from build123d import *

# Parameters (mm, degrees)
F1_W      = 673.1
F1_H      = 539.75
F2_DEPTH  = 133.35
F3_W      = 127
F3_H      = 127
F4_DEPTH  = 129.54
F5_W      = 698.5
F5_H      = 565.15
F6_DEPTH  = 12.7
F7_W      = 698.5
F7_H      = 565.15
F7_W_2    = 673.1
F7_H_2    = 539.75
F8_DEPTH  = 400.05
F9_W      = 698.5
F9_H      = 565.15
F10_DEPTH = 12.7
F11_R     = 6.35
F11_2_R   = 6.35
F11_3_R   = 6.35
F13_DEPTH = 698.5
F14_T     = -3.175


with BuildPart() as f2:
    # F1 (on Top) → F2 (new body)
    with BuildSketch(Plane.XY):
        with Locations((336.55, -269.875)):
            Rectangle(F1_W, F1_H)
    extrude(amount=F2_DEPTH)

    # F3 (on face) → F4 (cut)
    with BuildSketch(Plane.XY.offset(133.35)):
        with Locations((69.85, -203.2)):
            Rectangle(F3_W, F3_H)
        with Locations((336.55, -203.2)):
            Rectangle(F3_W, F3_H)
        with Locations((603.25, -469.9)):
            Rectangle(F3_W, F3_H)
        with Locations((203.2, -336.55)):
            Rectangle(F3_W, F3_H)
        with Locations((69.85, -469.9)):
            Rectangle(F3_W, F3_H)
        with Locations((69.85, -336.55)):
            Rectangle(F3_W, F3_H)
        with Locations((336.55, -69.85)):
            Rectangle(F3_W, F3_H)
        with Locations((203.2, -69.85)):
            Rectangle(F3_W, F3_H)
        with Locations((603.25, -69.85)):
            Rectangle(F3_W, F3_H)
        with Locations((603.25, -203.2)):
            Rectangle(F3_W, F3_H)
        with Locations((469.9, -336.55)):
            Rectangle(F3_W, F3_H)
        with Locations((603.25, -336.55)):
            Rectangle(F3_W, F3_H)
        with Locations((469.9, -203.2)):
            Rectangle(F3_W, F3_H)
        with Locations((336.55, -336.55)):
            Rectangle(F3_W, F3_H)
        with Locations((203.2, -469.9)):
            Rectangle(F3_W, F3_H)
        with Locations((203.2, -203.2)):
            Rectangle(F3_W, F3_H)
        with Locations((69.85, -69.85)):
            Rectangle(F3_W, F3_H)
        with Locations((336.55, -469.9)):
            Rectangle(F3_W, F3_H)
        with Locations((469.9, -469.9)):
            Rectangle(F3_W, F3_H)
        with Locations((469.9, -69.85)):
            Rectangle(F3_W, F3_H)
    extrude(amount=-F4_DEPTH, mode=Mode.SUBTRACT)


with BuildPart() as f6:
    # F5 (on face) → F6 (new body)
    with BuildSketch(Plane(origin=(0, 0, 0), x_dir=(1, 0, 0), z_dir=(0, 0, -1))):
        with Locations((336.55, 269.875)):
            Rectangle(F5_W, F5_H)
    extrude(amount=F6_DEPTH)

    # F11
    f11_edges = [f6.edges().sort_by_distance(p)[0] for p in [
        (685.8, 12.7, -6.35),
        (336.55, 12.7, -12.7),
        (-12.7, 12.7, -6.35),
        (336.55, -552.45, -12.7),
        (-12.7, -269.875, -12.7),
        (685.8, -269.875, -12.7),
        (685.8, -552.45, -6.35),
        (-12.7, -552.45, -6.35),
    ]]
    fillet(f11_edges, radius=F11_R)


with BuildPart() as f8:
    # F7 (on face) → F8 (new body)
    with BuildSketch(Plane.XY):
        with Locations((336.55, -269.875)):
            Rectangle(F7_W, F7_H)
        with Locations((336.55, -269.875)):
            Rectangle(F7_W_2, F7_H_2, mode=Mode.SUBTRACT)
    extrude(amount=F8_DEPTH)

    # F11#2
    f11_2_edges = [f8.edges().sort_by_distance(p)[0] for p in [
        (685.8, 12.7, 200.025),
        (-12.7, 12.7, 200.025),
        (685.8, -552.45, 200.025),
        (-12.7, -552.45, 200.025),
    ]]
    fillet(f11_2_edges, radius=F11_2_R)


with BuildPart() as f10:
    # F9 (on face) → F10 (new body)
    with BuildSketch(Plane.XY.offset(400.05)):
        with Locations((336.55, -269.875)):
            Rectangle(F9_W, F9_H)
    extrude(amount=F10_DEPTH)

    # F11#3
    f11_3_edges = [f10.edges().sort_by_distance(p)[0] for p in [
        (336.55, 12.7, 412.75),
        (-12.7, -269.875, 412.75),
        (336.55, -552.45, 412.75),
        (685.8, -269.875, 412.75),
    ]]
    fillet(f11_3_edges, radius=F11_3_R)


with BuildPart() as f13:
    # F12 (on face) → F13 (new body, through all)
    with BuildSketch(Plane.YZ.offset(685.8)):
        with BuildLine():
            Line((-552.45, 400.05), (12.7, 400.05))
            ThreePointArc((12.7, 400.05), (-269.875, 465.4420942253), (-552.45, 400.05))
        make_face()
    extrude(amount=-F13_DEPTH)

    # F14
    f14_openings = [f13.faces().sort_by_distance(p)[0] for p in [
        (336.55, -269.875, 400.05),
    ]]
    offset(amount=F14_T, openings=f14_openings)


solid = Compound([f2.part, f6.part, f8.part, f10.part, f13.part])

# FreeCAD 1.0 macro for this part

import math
import FreeCAD as App
import Part
import Sketcher
Q = App.Units.Quantity


def edges_at(feature, points):
    """Names of the edges that pass closest to the given points."""
    edges = feature.Shape.Edges
    near = lambda p: min(range(len(edges)), key=lambda i: edges[i].distToShape(Part.Vertex(*p))[0])
    return sorted({f"Edge{near(p) + 1}" for p in points})


def faces_at(feature, points):
    """Names of the faces that lie closest to the given points."""
    faces = feature.Shape.Faces
    near = lambda p: min(range(len(faces)), key=lambda i: faces[i].distToShape(Part.Vertex(*p))[0])
    return sorted({f"Face{near(p) + 1}" for p in points})


def add_polygon(sketch, points):
    """Adds a closed chain of lines whose ends are joined by coincident constraints."""
    first, n = sketch.GeometryCount, len(points)
    for a, b in zip(points, points[1:] + points[:1]):
        sketch.addGeometry(Part.LineSegment(App.Vector(*a, 0), App.Vector(*b, 0)), False)
    for i in range(n):
        sketch.addConstraint(Sketcher.Constraint("Coincident", first + i, 2, first + (i + 1) % n, 1))

doc = App.newDocument("Part")
body = doc.addObject("PartDesign::Body", "Body")

sketch1 = body.newObject("Sketcher::SketchObject", "Sketch")
sketch1.AttachmentSupport = (doc.getObject("XY_Plane"), [""])
sketch1.MapMode = "FlatFace"
add_polygon(sketch1, [(0, 0), (0, -539.75), (673.1, -539.75), (673.1, 0)])
sketch1.addConstraint([
    Sketcher.Constraint("Vertical", 0),
    Sketcher.Constraint("Horizontal", 1),
    Sketcher.Constraint("Vertical", 2),
    Sketcher.Constraint("Horizontal", 3),
    Sketcher.Constraint("Coincident", 3, 2, -1, 1),
    Sketcher.Constraint("DistanceX", 1, 1, 1, 2, Q("26.5 in")),
    Sketcher.Constraint("DistanceY", 0, 2, 0, 1, Q("21.25 in")),
])
pad1 = body.newObject("PartDesign::Pad", "Pad")
pad1.Profile = sketch1
pad1.Length = Q("5.25 in")

sketch2 = body.newObject("Sketcher::SketchObject", "Sketch001")
sketch2.AttachmentSupport = (doc.getObject("XY_Plane"), [""])
sketch2.MapMode = "FlatFace"
sketch2.AttachmentOffset = App.Placement(App.Vector(0, 0, 5.25 * 25.4), App.Rotation())
add_polygon(sketch2, [(6.35, -139.7), (6.35, -266.7), (133.35, -266.7), (133.35, -139.7)])
add_polygon(sketch2, [(273.05, -139.7), (273.05, -266.7), (400.05, -266.7), (400.05, -139.7)])
add_polygon(sketch2, [(539.75, -406.4), (539.75, -533.4), (666.75, -533.4), (666.75, -406.4)])
add_polygon(sketch2, [(139.7, -273.05), (139.7, -400.05), (266.7, -400.05), (266.7, -273.05)])
add_polygon(sketch2, [(6.35, -406.4), (6.35, -533.4), (133.35, -533.4), (133.35, -406.4)])
add_polygon(sketch2, [(6.35, -273.05), (6.35, -400.05), (133.35, -400.05), (133.35, -273.05)])
add_polygon(sketch2, [(273.05, -6.35), (273.05, -133.35), (400.05, -133.35), (400.05, -6.35)])
add_polygon(sketch2, [(139.7, -6.35), (139.7, -133.35), (266.7, -133.35), (266.7, -6.35)])
add_polygon(sketch2, [(539.75, -6.35), (539.75, -133.35), (666.75, -133.35), (666.75, -6.35)])
add_polygon(sketch2, [(539.75, -139.7), (539.75, -266.7), (666.75, -266.7), (666.75, -139.7)])
add_polygon(sketch2, [(406.4, -273.05), (406.4, -400.05), (533.4, -400.05), (533.4, -273.05)])
add_polygon(sketch2, [(539.75, -273.05), (539.75, -400.05), (666.75, -400.05), (666.75, -273.05)])
add_polygon(sketch2, [(406.4, -139.7), (406.4, -266.7), (533.4, -266.7), (533.4, -139.7)])
add_polygon(sketch2, [(273.05, -273.05), (273.05, -400.05), (400.05, -400.05), (400.05, -273.05)])
add_polygon(sketch2, [(139.7, -406.4), (139.7, -533.4), (266.7, -533.4), (266.7, -406.4)])
add_polygon(sketch2, [(139.7, -139.7), (139.7, -266.7), (266.7, -266.7), (266.7, -139.7)])
add_polygon(sketch2, [(6.35, -6.35), (6.35, -133.35), (133.35, -133.35), (133.35, -6.35)])
add_polygon(sketch2, [(273.05, -406.4), (273.05, -533.4), (400.05, -533.4), (400.05, -406.4)])
add_polygon(sketch2, [(406.4, -406.4), (406.4, -533.4), (533.4, -533.4), (533.4, -406.4)])
add_polygon(sketch2, [(406.4, -6.35), (406.4, -133.35), (533.4, -133.35), (533.4, -6.35)])
sketch2.addConstraint([
    Sketcher.Constraint("Vertical", 0),
    Sketcher.Constraint("Horizontal", 1),
    Sketcher.Constraint("Vertical", 2),
    Sketcher.Constraint("Horizontal", 3),
    Sketcher.Constraint("Vertical", 4),
    Sketcher.Constraint("Horizontal", 5),
    Sketcher.Constraint("Vertical", 6),
    Sketcher.Constraint("Horizontal", 7),
    Sketcher.Constraint("Vertical", 8),
    Sketcher.Constraint("Horizontal", 9),
    Sketcher.Constraint("Vertical", 10),
    Sketcher.Constraint("Horizontal", 11),
    Sketcher.Constraint("Vertical", 12),
    Sketcher.Constraint("Horizontal", 13),
    Sketcher.Constraint("Vertical", 14),
    Sketcher.Constraint("Horizontal", 15),
    Sketcher.Constraint("Vertical", 16),
    Sketcher.Constraint("Horizontal", 17),
    Sketcher.Constraint("Vertical", 18),
    Sketcher.Constraint("Horizontal", 19),
    Sketcher.Constraint("Vertical", 20),
    Sketcher.Constraint("Horizontal", 21),
    Sketcher.Constraint("Vertical", 22),
    Sketcher.Constraint("Horizontal", 23),
    Sketcher.Constraint("Vertical", 24),
    Sketcher.Constraint("Horizontal", 25),
    Sketcher.Constraint("Vertical", 26),
    Sketcher.Constraint("Horizontal", 27),
    Sketcher.Constraint("Vertical", 28),
    Sketcher.Constraint("Horizontal", 29),
    Sketcher.Constraint("Vertical", 30),
    Sketcher.Constraint("Horizontal", 31),
    Sketcher.Constraint("Vertical", 32),
    Sketcher.Constraint("Horizontal", 33),
    Sketcher.Constraint("Vertical", 34),
    Sketcher.Constraint("Horizontal", 35),
    Sketcher.Constraint("Vertical", 36),
    Sketcher.Constraint("Horizontal", 37),
    Sketcher.Constraint("Vertical", 38),
    Sketcher.Constraint("Horizontal", 39),
    Sketcher.Constraint("Vertical", 40),
    Sketcher.Constraint("Horizontal", 41),
    Sketcher.Constraint("Vertical", 42),
    Sketcher.Constraint("Horizontal", 43),
    Sketcher.Constraint("Vertical", 44),
    Sketcher.Constraint("Horizontal", 45),
    Sketcher.Constraint("Vertical", 46),
    Sketcher.Constraint("Horizontal", 47),
    Sketcher.Constraint("Vertical", 48),
    Sketcher.Constraint("Horizontal", 49),
    Sketcher.Constraint("Vertical", 50),
    Sketcher.Constraint("Horizontal", 51),
    Sketcher.Constraint("Vertical", 52),
    Sketcher.Constraint("Horizontal", 53),
    Sketcher.Constraint("Vertical", 54),
    Sketcher.Constraint("Horizontal", 55),
    Sketcher.Constraint("Vertical", 56),
    Sketcher.Constraint("Horizontal", 57),
    Sketcher.Constraint("Vertical", 58),
    Sketcher.Constraint("Horizontal", 59),
    Sketcher.Constraint("Vertical", 60),
    Sketcher.Constraint("Horizontal", 61),
    Sketcher.Constraint("Vertical", 62),
    Sketcher.Constraint("Horizontal", 63),
    Sketcher.Constraint("Vertical", 64),
    Sketcher.Constraint("Horizontal", 65),
    Sketcher.Constraint("Vertical", 66),
    Sketcher.Constraint("Horizontal", 67),
    Sketcher.Constraint("Vertical", 68),
    Sketcher.Constraint("Horizontal", 69),
    Sketcher.Constraint("Vertical", 70),
    Sketcher.Constraint("Horizontal", 71),
    Sketcher.Constraint("Vertical", 72),
    Sketcher.Constraint("Horizontal", 73),
    Sketcher.Constraint("Vertical", 74),
    Sketcher.Constraint("Horizontal", 75),
    Sketcher.Constraint("Vertical", 76),
    Sketcher.Constraint("Horizontal", 77),
    Sketcher.Constraint("Vertical", 78),
    Sketcher.Constraint("Horizontal", 79),
    Sketcher.Constraint("Horizontal", 1, 2, 4, 2),
    Sketcher.Constraint("Horizontal", 3, 2, 6, 2),
    Sketcher.Constraint("Horizontal", 9, 2, 16, 2),
    Sketcher.Constraint("Horizontal", 11, 2, 18, 2),
    Sketcher.Constraint("Horizontal", 13, 2, 20, 2),
    Sketcher.Constraint("Horizontal", 15, 2, 22, 2),
    Sketcher.Constraint("Horizontal", 25, 2, 28, 2),
    Sketcher.Constraint("Horizontal", 27, 2, 30, 2),
    Sketcher.Constraint("Horizontal", 29, 2, 32, 2),
    Sketcher.Constraint("Horizontal", 31, 2, 34, 2),
    Sketcher.Constraint("Horizontal", 5, 2, 36, 2),
    Sketcher.Constraint("Horizontal", 7, 2, 38, 2),
    Sketcher.Constraint("Horizontal", 21, 2, 40, 2),
    Sketcher.Constraint("Horizontal", 23, 2, 42, 2),
    Sketcher.Constraint("Horizontal", 41, 2, 44, 2),
    Sketcher.Constraint("Horizontal", 43, 2, 46, 2),
    Sketcher.Constraint("Horizontal", 37, 2, 48, 2),
    Sketcher.Constraint("Horizontal", 39, 2, 50, 2),
    Sketcher.Constraint("Horizontal", 45, 2, 52, 2),
    Sketcher.Constraint("Horizontal", 47, 2, 54, 2),
    Sketcher.Constraint("Horizontal", 17, 2, 56, 2),
    Sketcher.Constraint("Horizontal", 19, 2, 58, 2),
    Sketcher.Constraint("Horizontal", 49, 2, 60, 2),
    Sketcher.Constraint("Horizontal", 51, 2, 62, 2),
    Sketcher.Constraint("Horizontal", 33, 2, 64, 2),
    Sketcher.Constraint("Horizontal", 35, 2, 66, 2),
    Sketcher.Constraint("Horizontal", 57, 2, 68, 2),
    Sketcher.Constraint("Horizontal", 59, 2, 70, 2),
    Sketcher.Constraint("Horizontal", 69, 2, 72, 2),
    Sketcher.Constraint("Horizontal", 71, 2, 74, 2),
    Sketcher.Constraint("Horizontal", 65, 2, 76, 2),
    Sketcher.Constraint("Horizontal", 67, 2, 78, 2),
    Sketcher.Constraint("Vertical", 3, 2, 16, 2),
    Sketcher.Constraint("Vertical", 2, 2, 17, 2),
    Sketcher.Constraint("Vertical", 19, 2, 20, 2),
    Sketcher.Constraint("Vertical", 18, 2, 21, 2),
    Sketcher.Constraint("Vertical", 7, 2, 24, 2),
    Sketcher.Constraint("Vertical", 6, 2, 25, 2),
    Sketcher.Constraint("Vertical", 15, 2, 28, 2),
    Sketcher.Constraint("Vertical", 14, 2, 29, 2),
    Sketcher.Constraint("Vertical", 11, 2, 32, 2),
    Sketcher.Constraint("Vertical", 10, 2, 33, 2),
    Sketcher.Constraint("Vertical", 35, 2, 36, 2),
    Sketcher.Constraint("Vertical", 34, 2, 37, 2),
    Sketcher.Constraint("Vertical", 39, 2, 44, 2),
    Sketcher.Constraint("Vertical", 38, 2, 45, 2),
    Sketcher.Constraint("Vertical", 43, 2, 48, 2),
    Sketcher.Constraint("Vertical", 42, 2, 49, 2),
    Sketcher.Constraint("Vertical", 27, 2, 52, 2),
    Sketcher.Constraint("Vertical", 26, 2, 53, 2),
    Sketcher.Constraint("Vertical", 31, 2, 56, 2),
    Sketcher.Constraint("Vertical", 30, 2, 57, 2),
    Sketcher.Constraint("Vertical", 59, 2, 60, 2),
    Sketcher.Constraint("Vertical", 58, 2, 61, 2),
    Sketcher.Constraint("Vertical", 23, 2, 64, 2),
    Sketcher.Constraint("Vertical", 22, 2, 65, 2),
    Sketcher.Constraint("Vertical", 55, 2, 68, 2),
    Sketcher.Constraint("Vertical", 54, 2, 69, 2),
    Sketcher.Constraint("Vertical", 51, 2, 72, 2),
    Sketcher.Constraint("Vertical", 50, 2, 73, 2),
    Sketcher.Constraint("Vertical", 75, 2, 76, 2),
    Sketcher.Constraint("Vertical", 74, 2, 77, 2),
    Sketcher.Constraint("Equal", 3, 5),
    Sketcher.Constraint("Equal", 7, 9),
    Sketcher.Constraint("Equal", 11, 13),
    Sketcher.Constraint("Equal", 39, 41),
    Sketcher.Constraint("Equal", 79, 0),
    Sketcher.Constraint("Equal", 6, 8),
    Sketcher.Constraint("Equal", 10, 12),
    Sketcher.Constraint("Equal", 22, 24),
    Sketcher.Constraint("DistanceX", 1, 1, 1, 2, Q("5 in")),
    Sketcher.Constraint("DistanceY", 8, 2, -1, 1, Q("21 in")),
    Sketcher.Constraint("DistanceX", -1, 1, 40, 2, Q("16 in")),
    Sketcher.Constraint("DistanceY", 0, 2, -1, 1, Q("10.5 in")),
    Sketcher.Constraint("DistanceX", -1, 1, 12, 2, Q("5.5 in")),
    Sketcher.Constraint("DistanceX", -1, 1, 0, 2, Q("0.25 in")),
    Sketcher.Constraint("DistanceX", -1, 1, 4, 2, Q("10.75 in")),
    Sketcher.Constraint("DistanceX", -1, 1, 8, 2, Q("21.25 in")),
    Sketcher.Constraint("DistanceY", 12, 2, -1, 1, Q("15.75 in")),
    Sketcher.Constraint("DistanceY", 24, 2, -1, 1, Q("5.25 in")),
])
pocket1 = body.newObject("PartDesign::Pocket", "Pocket")
pocket1.Profile = sketch2
pocket1.Length = Q("5.1 in")
body2 = doc.addObject("PartDesign::Body", "Body001")

sketch3 = body2.newObject("Sketcher::SketchObject", "Sketch002")
sketch3.AttachmentSupport = (doc.getObject("XY_Plane001"), [""])
sketch3.MapMode = "FlatFace"
add_polygon(sketch3, [(-12.7, -552.45), (-12.7, 12.7), (685.8, 12.7), (685.8, -552.45)])
sketch3.addConstraint([
    Sketcher.Constraint("Vertical", 0),
    Sketcher.Constraint("Horizontal", 1),
    Sketcher.Constraint("Vertical", 2),
    Sketcher.Constraint("Horizontal", 3),
    Sketcher.Constraint("DistanceX", 1, 1, 1, 2, Q("27.5 in")),
    Sketcher.Constraint("DistanceX", -1, 1, 1, 2, Q("27 in")),
    Sketcher.Constraint("DistanceY", 0, 1, 0, 2, Q("22.25 in")),
    Sketcher.Constraint("DistanceY", -1, 1, 0, 2, Q("0.5 in")),
])
pad2 = body2.newObject("PartDesign::Pad", "Pad001")
pad2.Profile = sketch3
pad2.Length = Q("0.5 in")
pad2.Reversed = True
doc.recompute()

fillet = body2.newObject("PartDesign::Fillet", "Fillet")
fillet.Base = (pad2, edges_at(pad2, [
    (685.8, 12.7, -6.35),
    (336.55, 12.7, -12.7),
    (-12.7, 12.7, -6.35),
    (336.55, -552.45, -12.7),
    (-12.7, -269.875, -12.7),
    (685.8, -269.875, -12.7),
    (685.8, -552.45, -6.35),
    (-12.7, -552.45, -6.35),
]))
fillet.Radius = Q("0.25 in")
body3 = doc.addObject("PartDesign::Body", "Body002")

sketch4 = body3.newObject("Sketcher::SketchObject", "Sketch003")
sketch4.AttachmentSupport = (doc.getObject("XY_Plane002"), [""])
sketch4.MapMode = "FlatFace"
add_polygon(sketch4, [(-12.7, 12.7), (-12.7, -552.45), (685.8, -552.45), (685.8, 12.7)])
add_polygon(sketch4, [(673.1, -539.75), (0, -539.75), (0, 0), (673.1, 0)])
sketch4.addConstraint([
    Sketcher.Constraint("Vertical", 0),
    Sketcher.Constraint("Horizontal", 1),
    Sketcher.Constraint("Vertical", 2),
    Sketcher.Constraint("Horizontal", 3),
    Sketcher.Constraint("Horizontal", 4),
    Sketcher.Constraint("Vertical", 5),
    Sketcher.Constraint("Horizontal", 6),
    Sketcher.Constraint("Vertical", 7),
    Sketcher.Constraint("Coincident", 5, 2, -1, 1),
    Sketcher.Constraint("DistanceX", 1, 1, 1, 2, Q("27.5 in")),
    Sketcher.Constraint("DistanceX", 4, 2, 4, 1, Q("26.5 in")),
    Sketcher.Constraint("DistanceX", -1, 1, 1, 2, Q("27 in")),
    Sketcher.Constraint("DistanceY", 0, 2, 0, 1, Q("22.25 in")),
    Sketcher.Constraint("DistanceY", 5, 1, 5, 2, Q("21.25 in")),
    Sketcher.Constraint("DistanceY", -1, 1, 2, 2, Q("0.5 in")),
])
pad3 = body3.newObject("PartDesign::Pad", "Pad002")
pad3.Profile = sketch4
pad3.Length = Q("15.75 in")
doc.recompute()

fillet2 = body3.newObject("PartDesign::Fillet", "Fillet001")
fillet2.Base = (pad3, edges_at(pad3, [
    (685.8, 12.7, 200.025),
    (-12.7, 12.7, 200.025),
    (685.8, -552.45, 200.025),
    (-12.7, -552.45, 200.025),
]))
fillet2.Radius = Q("0.25 in")
body4 = doc.addObject("PartDesign::Body", "Body003")

sketch5 = body4.newObject("Sketcher::SketchObject", "Sketch004")
sketch5.AttachmentSupport = (doc.getObject("XY_Plane003"), [""])
sketch5.MapMode = "FlatFace"
sketch5.AttachmentOffset = App.Placement(App.Vector(0, 0, 15.75 * 25.4), App.Rotation())
add_polygon(sketch5, [(-12.7, 12.7), (-12.7, -552.45), (685.8, -552.45), (685.8, 12.7)])
sketch5.addConstraint([
    Sketcher.Constraint("Vertical", 0),
    Sketcher.Constraint("Horizontal", 1),
    Sketcher.Constraint("Vertical", 2),
    Sketcher.Constraint("Horizontal", 3),
    Sketcher.Constraint("DistanceX", 1, 1, 1, 2, Q("27.5 in")),
    Sketcher.Constraint("DistanceX", -1, 1, 1, 2, Q("27 in")),
    Sketcher.Constraint("DistanceY", 0, 2, 0, 1, Q("22.25 in")),
    Sketcher.Constraint("DistanceY", -1, 1, 2, 2, Q("0.5 in")),
])
pad4 = body4.newObject("PartDesign::Pad", "Pad003")
pad4.Profile = sketch5
pad4.Length = Q("0.5 in")
doc.recompute()

fillet3 = body4.newObject("PartDesign::Fillet", "Fillet002")
fillet3.Base = (pad4, edges_at(pad4, [
    (336.55, 12.7, 412.75),
    (-12.7, -269.875, 412.75),
    (336.55, -552.45, 412.75),
    (685.8, -269.875, 412.75),
]))
fillet3.Radius = Q("0.25 in")
body5 = doc.addObject("PartDesign::Body", "Body004")

sketch6 = body5.newObject("Sketcher::SketchObject", "Sketch005")
sketch6.AttachmentSupport = (doc.getObject("YZ_Plane004"), [""])
sketch6.MapMode = "FlatFace"
sketch6.AttachmentOffset = App.Placement(App.Vector(0, 0, 27 * 25.4), App.Rotation())
sketch6.addGeometry([
    Part.LineSegment(App.Vector(-552.45, 400.05, 0), App.Vector(12.7, 400.05, 0)),
    Part.ArcOfCircle(Part.Circle(App.Vector(-269.875, -177.791294, 0), App.Vector(0, 0, 1), 643.233388), math.radians(63.940518), math.radians(116.059482)),
], False)
sketch6.addConstraint([
    Sketcher.Constraint("Coincident", 0, 1, 1, 2),
    Sketcher.Constraint("Coincident", 1, 1, 0, 2),
    Sketcher.Constraint("Horizontal", 0),
    Sketcher.Constraint("DistanceX", 0, 1, 0, 2, Q("22.25 in")),
    Sketcher.Constraint("DistanceX", 0, 1, -1, 1, Q("21.75 in")),
    Sketcher.Constraint("DistanceY", -1, 1, 0, 1, Q("15.75 in")),
    Sketcher.Constraint("Radius", 1, Q("643.233388 mm")),
])
pad5 = body5.newObject("PartDesign::Pad", "Pad004")
pad5.Profile = sketch6
pad5.Length = Q("27.5 in")
pad5.Reversed = True
doc.recompute()

thickness = body5.newObject("PartDesign::Thickness", "Thickness")
thickness.Base = (pad5, faces_at(pad5, [(336.55, -269.875, 400.05)]))
thickness.Value = Q("0.125 in")
thickness.Reversed = True
thickness.Join = "Arc"

doc.recompute()
